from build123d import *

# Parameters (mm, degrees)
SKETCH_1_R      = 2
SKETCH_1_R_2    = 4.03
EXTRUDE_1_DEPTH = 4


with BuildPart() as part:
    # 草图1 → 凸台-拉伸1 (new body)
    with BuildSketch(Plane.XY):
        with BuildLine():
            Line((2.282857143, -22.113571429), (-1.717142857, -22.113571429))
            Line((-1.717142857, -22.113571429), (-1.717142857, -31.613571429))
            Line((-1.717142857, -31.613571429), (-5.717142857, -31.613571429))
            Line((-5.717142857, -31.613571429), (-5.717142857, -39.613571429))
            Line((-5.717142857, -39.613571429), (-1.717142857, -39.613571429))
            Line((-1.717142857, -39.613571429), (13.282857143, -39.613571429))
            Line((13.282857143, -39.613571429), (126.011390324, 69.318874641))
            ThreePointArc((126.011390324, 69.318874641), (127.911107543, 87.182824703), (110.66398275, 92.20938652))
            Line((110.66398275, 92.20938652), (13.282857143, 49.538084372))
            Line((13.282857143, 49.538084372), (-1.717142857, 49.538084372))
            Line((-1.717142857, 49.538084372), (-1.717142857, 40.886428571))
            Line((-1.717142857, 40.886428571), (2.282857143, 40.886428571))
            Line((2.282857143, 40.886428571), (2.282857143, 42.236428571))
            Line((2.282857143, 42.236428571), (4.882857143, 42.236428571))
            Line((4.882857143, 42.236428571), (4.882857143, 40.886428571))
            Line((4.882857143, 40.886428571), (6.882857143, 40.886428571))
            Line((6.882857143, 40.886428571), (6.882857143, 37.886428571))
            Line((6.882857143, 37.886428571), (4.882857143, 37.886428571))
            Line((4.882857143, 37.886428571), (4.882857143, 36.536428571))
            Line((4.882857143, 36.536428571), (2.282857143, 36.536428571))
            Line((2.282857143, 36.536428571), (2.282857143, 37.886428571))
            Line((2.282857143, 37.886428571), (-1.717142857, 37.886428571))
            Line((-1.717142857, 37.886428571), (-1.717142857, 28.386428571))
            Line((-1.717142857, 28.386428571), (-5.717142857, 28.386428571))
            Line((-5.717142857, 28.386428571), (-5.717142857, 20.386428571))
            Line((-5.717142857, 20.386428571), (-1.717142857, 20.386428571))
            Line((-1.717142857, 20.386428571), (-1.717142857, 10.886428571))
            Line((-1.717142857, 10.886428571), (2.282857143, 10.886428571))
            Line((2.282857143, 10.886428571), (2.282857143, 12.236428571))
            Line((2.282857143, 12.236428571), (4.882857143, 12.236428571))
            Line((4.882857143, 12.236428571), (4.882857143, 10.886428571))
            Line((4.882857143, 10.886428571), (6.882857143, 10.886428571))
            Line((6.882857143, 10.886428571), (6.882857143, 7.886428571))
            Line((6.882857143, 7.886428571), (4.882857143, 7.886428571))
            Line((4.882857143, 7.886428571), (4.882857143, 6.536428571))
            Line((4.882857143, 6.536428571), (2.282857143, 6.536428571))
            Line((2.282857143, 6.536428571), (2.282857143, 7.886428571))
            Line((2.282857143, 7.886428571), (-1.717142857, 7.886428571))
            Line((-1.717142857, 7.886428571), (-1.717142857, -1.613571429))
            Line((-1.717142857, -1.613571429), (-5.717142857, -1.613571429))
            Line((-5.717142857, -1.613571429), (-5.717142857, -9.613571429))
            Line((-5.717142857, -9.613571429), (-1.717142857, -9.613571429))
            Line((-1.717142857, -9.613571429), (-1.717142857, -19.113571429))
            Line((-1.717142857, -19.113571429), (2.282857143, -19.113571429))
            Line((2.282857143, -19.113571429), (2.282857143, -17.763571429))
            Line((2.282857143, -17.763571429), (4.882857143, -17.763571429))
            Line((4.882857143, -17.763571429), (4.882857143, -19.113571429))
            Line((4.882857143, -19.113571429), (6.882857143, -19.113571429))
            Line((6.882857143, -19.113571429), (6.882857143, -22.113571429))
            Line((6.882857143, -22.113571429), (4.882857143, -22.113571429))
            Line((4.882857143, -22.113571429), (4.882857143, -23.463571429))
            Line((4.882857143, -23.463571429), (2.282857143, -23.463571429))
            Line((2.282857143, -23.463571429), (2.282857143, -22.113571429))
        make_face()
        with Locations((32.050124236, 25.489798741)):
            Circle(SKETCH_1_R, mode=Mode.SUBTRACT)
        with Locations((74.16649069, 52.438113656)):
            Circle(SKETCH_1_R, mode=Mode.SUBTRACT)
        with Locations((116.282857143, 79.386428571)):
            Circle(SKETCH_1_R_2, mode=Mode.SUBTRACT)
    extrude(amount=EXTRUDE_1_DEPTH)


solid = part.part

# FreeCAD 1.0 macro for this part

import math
import FreeCAD as App
import Part
import Sketcher
from FreeCAD import Vector

doc = App.newDocument("Part")
params = doc.addObject("Spreadsheet::Sheet", "Params")
for row, (alias, value) in enumerate([
    ("sketch1_diameter", "4 mm"),
    ("sketch1_radius", "14 mm"),
    ("sketch1_diameter2", "8.06 mm"),
    ("sketch1_width", "4 mm"),
    ("sketch1_width2", "19 mm"),
    ("pad1_length", "4 mm"),
], start=1):
    params.set(f"A{row}", alias)
    params.set(f"B{row}", "=" + value)
    params.setAlias(f"B{row}", alias)

body = doc.addObject("PartDesign::Body", "Body")

# Sketch on XY plane
sketch1 = body.newObject("Sketcher::SketchObject", "Sketch")
sketch1.AttachmentSupport = (doc.getObject("XY_Plane"), [""])
sketch1.MapMode = "FlatFace"
sketch1.addGeometry(Part.LineSegment(Vector(2.282857, -22.113571, 0), Vector(-1.717143, -22.113571, 0)), False)
sketch1.addGeometry(Part.LineSegment(Vector(-1.717143, -22.113571, 0), Vector(-1.717143, -31.613571, 0)), False)
sketch1.addGeometry(Part.LineSegment(Vector(-1.717143, -31.613571, 0), Vector(-5.717143, -31.613571, 0)), False)
sketch1.addGeometry(Part.LineSegment(Vector(-5.717143, -31.613571, 0), Vector(-5.717143, -39.613571, 0)), False)
sketch1.addGeometry(Part.LineSegment(Vector(-5.717143, -39.613571, 0), Vector(13.282857, -39.613571, 0)), False)
sketch1.addGeometry(Part.LineSegment(Vector(13.282857, -39.613571, 0), Vector(126.01139, 69.318875, 0)), False)
sketch1.addGeometry(Part.ArcOfCircle(Part.Circle(Vector(116.282857, 79.386429, 0), Vector(0, 0, 1), 14), math.radians(-45.981131), math.radians(113.662486)), False)
sketch1.addGeometry(Part.LineSegment(Vector(110.663983, 92.209387, 0), Vector(13.282857, 49.538084, 0)), False)
sketch1.addGeometry(Part.LineSegment(Vector(13.282857, 49.538084, 0), Vector(-1.717143, 49.538084, 0)), False)
sketch1.addGeometry(Part.LineSegment(Vector(-1.717143, 49.538084, 0), Vector(-1.717143, 40.886429, 0)), False)
sketch1.addGeometry(Part.LineSegment(Vector(-1.717143, 40.886429, 0), Vector(2.282857, 40.886429, 0)), False)
sketch1.addGeometry(Part.LineSegment(Vector(2.282857, 40.886429, 0), Vector(2.282857, 42.236429, 0)), False)
sketch1.addGeometry(Part.LineSegment(Vector(2.282857, 42.236429, 0), Vector(4.882857, 42.236429, 0)), False)
sketch1.addGeometry(Part.LineSegment(Vector(4.882857, 42.236429, 0), Vector(4.882857, 40.886429, 0)), False)
sketch1.addGeometry(Part.LineSegment(Vector(4.882857, 40.886429, 0), Vector(6.882857, 40.886429, 0)), False)
sketch1.addGeometry(Part.LineSegment(Vector(6.882857, 40.886429, 0), Vector(6.882857, 37.886429, 0)), False)
sketch1.addGeometry(Part.LineSegment(Vector(6.882857, 37.886429, 0), Vector(4.882857, 37.886429, 0)), False)
sketch1.addGeometry(Part.LineSegment(Vector(4.882857, 37.886429, 0), Vector(4.882857, 36.536429, 0)), False)
sketch1.addGeometry(Part.LineSegment(Vector(4.882857, 36.536429, 0), Vector(2.282857, 36.536429, 0)), False)
sketch1.addGeometry(Part.LineSegment(Vector(2.282857, 36.536429, 0), Vector(2.282857, 37.886429, 0)), False)
sketch1.addGeometry(Part.LineSegment(Vector(2.282857, 37.886429, 0), Vector(-1.717143, 37.886429, 0)), False)
sketch1.addGeometry(Part.LineSegment(Vector(-1.717143, 37.886429, 0), Vector(-1.717143, 28.386429, 0)), False)
sketch1.addGeometry(Part.LineSegment(Vector(-1.717143, 28.386429, 0), Vector(-5.717143, 28.386429, 0)), False)
sketch1.addGeometry(Part.LineSegment(Vector(-5.717143, 28.386429, 0), Vector(-5.717143, 20.386429, 0)), False)
sketch1.addGeometry(Part.LineSegment(Vector(-5.717143, 20.386429, 0), Vector(-1.717143, 20.386429, 0)), False)
sketch1.addGeometry(Part.LineSegment(Vector(-1.717143, 20.386429, 0), Vector(-1.717143, 10.886429, 0)), False)
sketch1.addGeometry(Part.LineSegment(Vector(-1.717143, 10.886429, 0), Vector(2.282857, 10.886429, 0)), False)
sketch1.addGeometry(Part.LineSegment(Vector(2.282857, 10.886429, 0), Vector(2.282857, 12.236429, 0)), False)
sketch1.addGeometry(Part.LineSegment(Vector(2.282857, 12.236429, 0), Vector(4.882857, 12.236429, 0)), False)
sketch1.addGeometry(Part.LineSegment(Vector(4.882857, 12.236429, 0), Vector(4.882857, 10.886429, 0)), False)
sketch1.addGeometry(Part.LineSegment(Vector(4.882857, 10.886429, 0), Vector(6.882857, 10.886429, 0)), False)
sketch1.addGeometry(Part.LineSegment(Vector(6.882857, 10.886429, 0), Vector(6.882857, 7.886429, 0)), False)
sketch1.addGeometry(Part.LineSegment(Vector(6.882857, 7.886429, 0), Vector(4.882857, 7.886429, 0)), False)
sketch1.addGeometry(Part.LineSegment(Vector(4.882857, 7.886429, 0), Vector(4.882857, 6.536429, 0)), False)
sketch1.addGeometry(Part.LineSegment(Vector(4.882857, 6.536429, 0), Vector(2.282857, 6.536429, 0)), False)
sketch1.addGeometry(Part.LineSegment(Vector(2.282857, 6.536429, 0), Vector(2.282857, 7.886429, 0)), False)
sketch1.addGeometry(Part.LineSegment(Vector(2.282857, 7.886429, 0), Vector(-1.717143, 7.886429, 0)), False)
sketch1.addGeometry(Part.LineSegment(Vector(-1.717143, 7.886429, 0), Vector(-1.717143, -1.613571, 0)), False)
sketch1.addGeometry(Part.LineSegment(Vector(-1.717143, -1.613571, 0), Vector(-5.717143, -1.613571, 0)), False)
sketch1.addGeometry(Part.LineSegment(Vector(-5.717143, -1.613571, 0), Vector(-5.717143, -9.613571, 0)), False)
sketch1.addGeometry(Part.LineSegment(Vector(-5.717143, -9.613571, 0), Vector(-1.717143, -9.613571, 0)), False)
sketch1.addGeometry(Part.LineSegment(Vector(-1.717143, -9.613571, 0), Vector(-1.717143, -19.113571, 0)), False)
sketch1.addGeometry(Part.LineSegment(Vector(-1.717143, -19.113571, 0), Vector(2.282857, -19.113571, 0)), False)
sketch1.addGeometry(Part.LineSegment(Vector(2.282857, -19.113571, 0), Vector(2.282857, -17.763571, 0)), False)
sketch1.addGeometry(Part.LineSegment(Vector(2.282857, -17.763571, 0), Vector(4.882857, -17.763571, 0)), False)
sketch1.addGeometry(Part.LineSegment(Vector(4.882857, -17.763571, 0), Vector(4.882857, -19.113571, 0)), False)
sketch1.addGeometry(Part.LineSegment(Vector(4.882857, -19.113571, 0), Vector(6.882857, -19.113571, 0)), False)
sketch1.addGeometry(Part.LineSegment(Vector(6.882857, -19.113571, 0), Vector(6.882857, -22.113571, 0)), False)
sketch1.addGeometry(Part.LineSegment(Vector(6.882857, -22.113571, 0), Vector(4.882857, -22.113571, 0)), False)
sketch1.addGeometry(Part.LineSegment(Vector(4.882857, -22.113571, 0), Vector(4.882857, -23.463571, 0)), False)
sketch1.addGeometry(Part.LineSegment(Vector(4.882857, -23.463571, 0), Vector(2.282857, -23.463571, 0)), False)
sketch1.addGeometry(Part.LineSegment(Vector(2.282857, -23.463571, 0), Vector(2.282857, -22.113571, 0)), False)
sketch1.addGeometry(Part.Circle(Vector(32.050124, 25.489799, 0), Vector(0, 0, 1), 2), False)
sketch1.addGeometry(Part.Circle(Vector(74.166491, 52.438114, 0), Vector(0, 0, 1), 2), False)
sketch1.addGeometry(Part.Circle(Vector(116.282857, 79.386429, 0), Vector(0, 0, 1), 4.03), False)
sketch1.addConstraint(Sketcher.Constraint("Coincident", 0, 2, 1, 1))
sketch1.addConstraint(Sketcher.Constraint("Coincident", 1, 2, 2, 1))
sketch1.addConstraint(Sketcher.Constraint("Coincident", 2, 2, 3, 1))
sketch1.addConstraint(Sketcher.Constraint("Coincident", 3, 2, 4, 1))
sketch1.addConstraint(Sketcher.Constraint("Coincident", 4, 2, 5, 1))
sketch1.addConstraint(Sketcher.Constraint("Tangent", 5, 2, 6, 1))
sketch1.addConstraint(Sketcher.Constraint("Tangent", 6, 2, 7, 1))
sketch1.addConstraint(Sketcher.Constraint("Coincident", 7, 2, 8, 1))
sketch1.addConstraint(Sketcher.Constraint("Coincident", 8, 2, 9, 1))
sketch1.addConstraint(Sketcher.Constraint("Coincident", 9, 2, 10, 1))
sketch1.addConstraint(Sketcher.Constraint("Coincident", 10, 2, 11, 1))
sketch1.addConstraint(Sketcher.Constraint("Coincident", 11, 2, 12, 1))
sketch1.addConstraint(Sketcher.Constraint("Coincident", 12, 2, 13, 1))
sketch1.addConstraint(Sketcher.Constraint("Coincident", 13, 2, 14, 1))
sketch1.addConstraint(Sketcher.Constraint("Coincident", 14, 2, 15, 1))
sketch1.addConstraint(Sketcher.Constraint("Coincident", 15, 2, 16, 1))
sketch1.addConstraint(Sketcher.Constraint("Coincident", 16, 2, 17, 1))
sketch1.addConstraint(Sketcher.Constraint("Coincident", 17, 2, 18, 1))
sketch1.addConstraint(Sketcher.Constraint("Coincident", 18, 2, 19, 1))
sketch1.addConstraint(Sketcher.Constraint("Coincident", 19, 2, 20, 1))
sketch1.addConstraint(Sketcher.Constraint("Coincident", 20, 2, 21, 1))
sketch1.addConstraint(Sketcher.Constraint("Coincident", 21, 2, 22, 1))
sketch1.addConstraint(Sketcher.Constraint("Coincident", 22, 2, 23, 1))
sketch1.addConstraint(Sketcher.Constraint("Coincident", 23, 2, 24, 1))
sketch1.addConstraint(Sketcher.Constraint("Coincident", 24, 2, 25, 1))
sketch1.addConstraint(Sketcher.Constraint("Coincident", 25, 2, 26, 1))
sketch1.addConstraint(Sketcher.Constraint("Coincident", 26, 2, 27, 1))
sketch1.addConstraint(Sketcher.Constraint("Coincident", 27, 2, 28, 1))
sketch1.addConstraint(Sketcher.Constraint("Coincident", 28, 2, 29, 1))
sketch1.addConstraint(Sketcher.Constraint("Coincident", 29, 2, 30, 1))
sketch1.addConstraint(Sketcher.Constraint("Coincident", 30, 2, 31, 1))
sketch1.addConstraint(Sketcher.Constraint("Coincident", 31, 2, 32, 1))
sketch1.addConstraint(Sketcher.Constraint("Coincident", 32, 2, 33, 1))
sketch1.addConstraint(Sketcher.Constraint("Coincident", 33, 2, 34, 1))
sketch1.addConstraint(Sketcher.Constraint("Coincident", 34, 2, 35, 1))
sketch1.addConstraint(Sketcher.Constraint("Coincident", 35, 2, 36, 1))
sketch1.addConstraint(Sketcher.Constraint("Coincident", 36, 2, 37, 1))
sketch1.addConstraint(Sketcher.Constraint("Coincident", 37, 2, 38, 1))
sketch1.addConstraint(Sketcher.Constraint("Coincident", 38, 2, 39, 1))
sketch1.addConstraint(Sketcher.Constraint("Coincident", 39, 2, 40, 1))
sketch1.addConstraint(Sketcher.Constraint("Coincident", 40, 2, 41, 1))
sketch1.addConstraint(Sketcher.Constraint("Coincident", 41, 2, 42, 1))
sketch1.addConstraint(Sketcher.Constraint("Coincident", 42, 2, 43, 1))
sketch1.addConstraint(Sketcher.Constraint("Coincident", 43, 2, 44, 1))
sketch1.addConstraint(Sketcher.Constraint("Coincident", 44, 2, 45, 1))
sketch1.addConstraint(Sketcher.Constraint("Coincident", 45, 2, 46, 1))
sketch1.addConstraint(Sketcher.Constraint("Coincident", 46, 2, 47, 1))
sketch1.addConstraint(Sketcher.Constraint("Coincident", 47, 2, 48, 1))
sketch1.addConstraint(Sketcher.Constraint("Coincident", 48, 2, 49, 1))
sketch1.addConstraint(Sketcher.Constraint("Coincident", 49, 2, 50, 1))
sketch1.addConstraint(Sketcher.Constraint("Coincident", 50, 2, 51, 1))
sketch1.addConstraint(Sketcher.Constraint("Coincident", 51, 2, 0, 1))
sketch1.addConstraint(Sketcher.Constraint("Horizontal", 0))
sketch1.addConstraint(Sketcher.Constraint("Vertical", 1))
sketch1.addConstraint(Sketcher.Constraint("Horizontal", 2))
sketch1.addConstraint(Sketcher.Constraint("Vertical", 3))
sketch1.addConstraint(Sketcher.Constraint("Horizontal", 4))
sketch1.addConstraint(Sketcher.Constraint("Horizontal", 8))
sketch1.addConstraint(Sketcher.Constraint("Vertical", 9))
sketch1.addConstraint(Sketcher.Constraint("Horizontal", 10))
sketch1.addConstraint(Sketcher.Constraint("Vertical", 11))
sketch1.addConstraint(Sketcher.Constraint("Horizontal", 12))
sketch1.addConstraint(Sketcher.Constraint("Vertical", 13))
sketch1.addConstraint(Sketcher.Constraint("Horizontal", 14))
sketch1.addConstraint(Sketcher.Constraint("Vertical", 15))
sketch1.addConstraint(Sketcher.Constraint("Horizontal", 16))
sketch1.addConstraint(Sketcher.Constraint("Vertical", 17))
sketch1.addConstraint(Sketcher.Constraint("Horizontal", 18))
sketch1.addConstraint(Sketcher.Constraint("Vertical", 19))
sketch1.addConstraint(Sketcher.Constraint("Horizontal", 20))
sketch1.addConstraint(Sketcher.Constraint("Vertical", 21))
sketch1.addConstraint(Sketcher.Constraint("Horizontal", 22))
sketch1.addConstraint(Sketcher.Constraint("Vertical", 23))
sketch1.addConstraint(Sketcher.Constraint("Horizontal", 24))
sketch1.addConstraint(Sketcher.Constraint("Vertical", 25))
sketch1.addConstraint(Sketcher.Constraint("Horizontal", 26))
sketch1.addConstraint(Sketcher.Constraint("Vertical", 27))
sketch1.addConstraint(Sketcher.Constraint("Horizontal", 28))
sketch1.addConstraint(Sketcher.Constraint("Vertical", 29))
sketch1.addConstraint(Sketcher.Constraint("Horizontal", 30))
sketch1.addConstraint(Sketcher.Constraint("Vertical", 31))
sketch1.addConstraint(Sketcher.Constraint("Horizontal", 32))
sketch1.addConstraint(Sketcher.Constraint("Vertical", 33))
sketch1.addConstraint(Sketcher.Constraint("Horizontal", 34))
sketch1.addConstraint(Sketcher.Constraint("Vertical", 35))
sketch1.addConstraint(Sketcher.Constraint("Horizontal", 36))
sketch1.addConstraint(Sketcher.Constraint("Vertical", 37))
sketch1.addConstraint(Sketcher.Constraint("Horizontal", 38))
sketch1.addConstraint(Sketcher.Constraint("Vertical", 39))
sketch1.addConstraint(Sketcher.Constraint("Horizontal", 40))
sketch1.addConstraint(Sketcher.Constraint("Vertical", 41))
sketch1.addConstraint(Sketcher.Constraint("Horizontal", 42))
sketch1.addConstraint(Sketcher.Constraint("Vertical", 43))
sketch1.addConstraint(Sketcher.Constraint("Horizontal", 44))
sketch1.addConstraint(Sketcher.Constraint("Vertical", 45))
sketch1.addConstraint(Sketcher.Constraint("Horizontal", 46))
sketch1.addConstraint(Sketcher.Constraint("Vertical", 47))
sketch1.addConstraint(Sketcher.Constraint("Horizontal", 48))
sketch1.addConstraint(Sketcher.Constraint("Vertical", 49))
sketch1.addConstraint(Sketcher.Constraint("Horizontal", 50))
sketch1.addConstraint(Sketcher.Constraint("Vertical", 51))
sketch1.addConstraint(Sketcher.Constraint("Coincident", 54, 3, 6, 3))
sketch1.addConstraint(Sketcher.Constraint("Equal", 52, 53))
sketch1.addConstraint(Sketcher.Constraint("Horizontal", 10, 2, 13, 2))
sketch1.addConstraint(Sketcher.Constraint("Horizontal", 16, 2, 19, 2))
sketch1.addConstraint(Sketcher.Constraint("Horizontal", 26, 2, 29, 2))
sketch1.addConstraint(Sketcher.Constraint("Horizontal", 32, 2, 35, 2))
sketch1.addConstraint(Sketcher.Constraint("Horizontal", 42, 2, 45, 2))
sketch1.addConstraint(Sketcher.Constraint("Horizontal", 0, 2, 47, 2))
sketch1.addConstraint(Sketcher.Constraint("Vertical", 4, 2, 7, 2))
sketch1.addConstraint(Sketcher.Constraint("Vertical", 1, 2, 8, 2))
sketch1.addConstraint(Sketcher.Constraint("Vertical", 13, 2, 16, 2))
sketch1.addConstraint(Sketcher.Constraint("Vertical", 11, 2, 18, 2))
sketch1.addConstraint(Sketcher.Constraint("Vertical", 9, 2, 20, 2))
sketch1.addConstraint(Sketcher.Constraint("Vertical", 3, 2, 22, 2))
sketch1.addConstraint(Sketcher.Constraint("Vertical", 21, 2, 24, 2))
sketch1.addConstraint(Sketcher.Constraint("Vertical", 19, 2, 26, 2))
sketch1.addConstraint(Sketcher.Constraint("Vertical", 17, 2, 28, 2))
sketch1.addConstraint(Sketcher.Constraint("Vertical", 15, 2, 30, 2))
sketch1.addConstraint(Sketcher.Constraint("Vertical", 29, 2, 32, 2))
sketch1.addConstraint(Sketcher.Constraint("Vertical", 27, 2, 34, 2))
sketch1.addConstraint(Sketcher.Constraint("Vertical", 25, 2, 36, 2))
sketch1.addConstraint(Sketcher.Constraint("Vertical", 23, 2, 38, 2))
sketch1.addConstraint(Sketcher.Constraint("Vertical", 37, 2, 40, 2))
sketch1.addConstraint(Sketcher.Constraint("Vertical", 35, 2, 42, 2))
sketch1.addConstraint(Sketcher.Constraint("Vertical", 33, 2, 44, 2))
sketch1.addConstraint(Sketcher.Constraint("Vertical", 31, 2, 46, 2))
sketch1.addConstraint(Sketcher.Constraint("Vertical", 45, 2, 48, 2))
sketch1.addConstraint(Sketcher.Constraint("Vertical", 43, 2, 50, 2))
sketch1.addConstraint(Sketcher.Constraint("Equal", 0, 2))
sketch1.addConstraint(Sketcher.Constraint("Equal", 13, 17))
sketch1.addConstraint(Sketcher.Constraint("Equal", 1, 21))
sketch1.addConstraint(Sketcher.Constraint("Equal", 3, 23))
sketch1.addConstraint(Sketcher.Constraint("Equal", 21, 25))
sketch1.addConstraint(Sketcher.Constraint("Equal", 19, 27))
sketch1.addConstraint(Sketcher.Constraint("Equal", 15, 31))
sketch1.addConstraint(Sketcher.Constraint("Equal", 29, 33))
sketch1.addConstraint(Sketcher.Constraint("Equal", 25, 37))
sketch1.addConstraint(Sketcher.Constraint("Equal", 23, 39))
sketch1.addConstraint(Sketcher.Constraint("Equal", 37, 41))
sketch1.addConstraint(Sketcher.Constraint("Equal", 35, 43))
sketch1.addConstraint(Sketcher.Constraint("Equal", 31, 47))
sketch1.addConstraint(Sketcher.Constraint("Equal", 45, 49))
sketch1.addConstraint(Sketcher.Constraint("Diameter", 52, 4.0))
sketch1.addConstraint(Sketcher.Constraint("Radius", 6, 14.0))
sketch1.addConstraint(Sketcher.Constraint("Diameter", 54, 8.06))
sketch1.addConstraint(Sketcher.Constraint("DistanceX", 0, 2, 0, 1, 4.0))
sketch1.addConstraint(Sketcher.Constraint("DistanceX", 4, 1, 4, 2, 19.0))
sketch1.addConstraint(Sketcher.Constraint("DistanceX", 14, 1, 14, 2, 2.0))
sketch1.addConstraint(Sketcher.Constraint("DistanceY", 3, 2, 3, 1, 8.0))
sketch1.addConstraint(Sketcher.Constraint("DistanceY", 15, 2, 15, 1, 3.0))
sketch1.addConstraint(Sketcher.Constraint("DistanceX", 12, 1, 12, 2, 2.6))
sketch1.addConstraint(Sketcher.Constraint("DistanceY", 1, 2, 1, 1, 9.5))
sketch1.addConstraint(Sketcher.Constraint("DistanceX", 0, 2, 54, 3, 118.0))
sketch1.addConstraint(Sketcher.Constraint("DistanceY", 1, 2, 54, 3, 111.0))
sketch1.addConstraint(Sketcher.Constraint("DistanceY", 11, 1, 11, 2, 1.35))
sketch1.addConstraint(Sketcher.Constraint("DistanceY", -1, 1, 52, 3, 25.489799))
sketch1.addConstraint(Sketcher.Constraint("DistanceX", 53, 3, 5, 2, 51.8449))
sketch1.addConstraint(Sketcher.Constraint("Distance", 7, 106.319912))
sketch1.addConstraint(Sketcher.Constraint("DistanceY", -1, 1, 6, 3, 79.386429))
sketch1.addConstraint(Sketcher.Constraint("DistanceX", -1, 1, 53, 3, 74.166491))
sketch1.addConstraint(Sketcher.Constraint("DistanceY", 53, 3, 5, 2, 16.880761))
sketch1.addConstraint(Sketcher.Constraint("DistanceX", 52, 3, 6, 2, 78.613859))
sketch1.setExpression("Constraints[143]", "Params.sketch1_diameter")
sketch1.setExpression("Constraints[144]", "Params.sketch1_radius")
sketch1.setExpression("Constraints[145]", "Params.sketch1_diameter2")
sketch1.setExpression("Constraints[146]", "Params.sketch1_width")
sketch1.setExpression("Constraints[147]", "Params.sketch1_width2")
pad1 = body.newObject("PartDesign::Pad", "Pad")
pad1.Profile = sketch1
pad1.setExpression("Length", "Params.pad1_length")

doc.recompute()
